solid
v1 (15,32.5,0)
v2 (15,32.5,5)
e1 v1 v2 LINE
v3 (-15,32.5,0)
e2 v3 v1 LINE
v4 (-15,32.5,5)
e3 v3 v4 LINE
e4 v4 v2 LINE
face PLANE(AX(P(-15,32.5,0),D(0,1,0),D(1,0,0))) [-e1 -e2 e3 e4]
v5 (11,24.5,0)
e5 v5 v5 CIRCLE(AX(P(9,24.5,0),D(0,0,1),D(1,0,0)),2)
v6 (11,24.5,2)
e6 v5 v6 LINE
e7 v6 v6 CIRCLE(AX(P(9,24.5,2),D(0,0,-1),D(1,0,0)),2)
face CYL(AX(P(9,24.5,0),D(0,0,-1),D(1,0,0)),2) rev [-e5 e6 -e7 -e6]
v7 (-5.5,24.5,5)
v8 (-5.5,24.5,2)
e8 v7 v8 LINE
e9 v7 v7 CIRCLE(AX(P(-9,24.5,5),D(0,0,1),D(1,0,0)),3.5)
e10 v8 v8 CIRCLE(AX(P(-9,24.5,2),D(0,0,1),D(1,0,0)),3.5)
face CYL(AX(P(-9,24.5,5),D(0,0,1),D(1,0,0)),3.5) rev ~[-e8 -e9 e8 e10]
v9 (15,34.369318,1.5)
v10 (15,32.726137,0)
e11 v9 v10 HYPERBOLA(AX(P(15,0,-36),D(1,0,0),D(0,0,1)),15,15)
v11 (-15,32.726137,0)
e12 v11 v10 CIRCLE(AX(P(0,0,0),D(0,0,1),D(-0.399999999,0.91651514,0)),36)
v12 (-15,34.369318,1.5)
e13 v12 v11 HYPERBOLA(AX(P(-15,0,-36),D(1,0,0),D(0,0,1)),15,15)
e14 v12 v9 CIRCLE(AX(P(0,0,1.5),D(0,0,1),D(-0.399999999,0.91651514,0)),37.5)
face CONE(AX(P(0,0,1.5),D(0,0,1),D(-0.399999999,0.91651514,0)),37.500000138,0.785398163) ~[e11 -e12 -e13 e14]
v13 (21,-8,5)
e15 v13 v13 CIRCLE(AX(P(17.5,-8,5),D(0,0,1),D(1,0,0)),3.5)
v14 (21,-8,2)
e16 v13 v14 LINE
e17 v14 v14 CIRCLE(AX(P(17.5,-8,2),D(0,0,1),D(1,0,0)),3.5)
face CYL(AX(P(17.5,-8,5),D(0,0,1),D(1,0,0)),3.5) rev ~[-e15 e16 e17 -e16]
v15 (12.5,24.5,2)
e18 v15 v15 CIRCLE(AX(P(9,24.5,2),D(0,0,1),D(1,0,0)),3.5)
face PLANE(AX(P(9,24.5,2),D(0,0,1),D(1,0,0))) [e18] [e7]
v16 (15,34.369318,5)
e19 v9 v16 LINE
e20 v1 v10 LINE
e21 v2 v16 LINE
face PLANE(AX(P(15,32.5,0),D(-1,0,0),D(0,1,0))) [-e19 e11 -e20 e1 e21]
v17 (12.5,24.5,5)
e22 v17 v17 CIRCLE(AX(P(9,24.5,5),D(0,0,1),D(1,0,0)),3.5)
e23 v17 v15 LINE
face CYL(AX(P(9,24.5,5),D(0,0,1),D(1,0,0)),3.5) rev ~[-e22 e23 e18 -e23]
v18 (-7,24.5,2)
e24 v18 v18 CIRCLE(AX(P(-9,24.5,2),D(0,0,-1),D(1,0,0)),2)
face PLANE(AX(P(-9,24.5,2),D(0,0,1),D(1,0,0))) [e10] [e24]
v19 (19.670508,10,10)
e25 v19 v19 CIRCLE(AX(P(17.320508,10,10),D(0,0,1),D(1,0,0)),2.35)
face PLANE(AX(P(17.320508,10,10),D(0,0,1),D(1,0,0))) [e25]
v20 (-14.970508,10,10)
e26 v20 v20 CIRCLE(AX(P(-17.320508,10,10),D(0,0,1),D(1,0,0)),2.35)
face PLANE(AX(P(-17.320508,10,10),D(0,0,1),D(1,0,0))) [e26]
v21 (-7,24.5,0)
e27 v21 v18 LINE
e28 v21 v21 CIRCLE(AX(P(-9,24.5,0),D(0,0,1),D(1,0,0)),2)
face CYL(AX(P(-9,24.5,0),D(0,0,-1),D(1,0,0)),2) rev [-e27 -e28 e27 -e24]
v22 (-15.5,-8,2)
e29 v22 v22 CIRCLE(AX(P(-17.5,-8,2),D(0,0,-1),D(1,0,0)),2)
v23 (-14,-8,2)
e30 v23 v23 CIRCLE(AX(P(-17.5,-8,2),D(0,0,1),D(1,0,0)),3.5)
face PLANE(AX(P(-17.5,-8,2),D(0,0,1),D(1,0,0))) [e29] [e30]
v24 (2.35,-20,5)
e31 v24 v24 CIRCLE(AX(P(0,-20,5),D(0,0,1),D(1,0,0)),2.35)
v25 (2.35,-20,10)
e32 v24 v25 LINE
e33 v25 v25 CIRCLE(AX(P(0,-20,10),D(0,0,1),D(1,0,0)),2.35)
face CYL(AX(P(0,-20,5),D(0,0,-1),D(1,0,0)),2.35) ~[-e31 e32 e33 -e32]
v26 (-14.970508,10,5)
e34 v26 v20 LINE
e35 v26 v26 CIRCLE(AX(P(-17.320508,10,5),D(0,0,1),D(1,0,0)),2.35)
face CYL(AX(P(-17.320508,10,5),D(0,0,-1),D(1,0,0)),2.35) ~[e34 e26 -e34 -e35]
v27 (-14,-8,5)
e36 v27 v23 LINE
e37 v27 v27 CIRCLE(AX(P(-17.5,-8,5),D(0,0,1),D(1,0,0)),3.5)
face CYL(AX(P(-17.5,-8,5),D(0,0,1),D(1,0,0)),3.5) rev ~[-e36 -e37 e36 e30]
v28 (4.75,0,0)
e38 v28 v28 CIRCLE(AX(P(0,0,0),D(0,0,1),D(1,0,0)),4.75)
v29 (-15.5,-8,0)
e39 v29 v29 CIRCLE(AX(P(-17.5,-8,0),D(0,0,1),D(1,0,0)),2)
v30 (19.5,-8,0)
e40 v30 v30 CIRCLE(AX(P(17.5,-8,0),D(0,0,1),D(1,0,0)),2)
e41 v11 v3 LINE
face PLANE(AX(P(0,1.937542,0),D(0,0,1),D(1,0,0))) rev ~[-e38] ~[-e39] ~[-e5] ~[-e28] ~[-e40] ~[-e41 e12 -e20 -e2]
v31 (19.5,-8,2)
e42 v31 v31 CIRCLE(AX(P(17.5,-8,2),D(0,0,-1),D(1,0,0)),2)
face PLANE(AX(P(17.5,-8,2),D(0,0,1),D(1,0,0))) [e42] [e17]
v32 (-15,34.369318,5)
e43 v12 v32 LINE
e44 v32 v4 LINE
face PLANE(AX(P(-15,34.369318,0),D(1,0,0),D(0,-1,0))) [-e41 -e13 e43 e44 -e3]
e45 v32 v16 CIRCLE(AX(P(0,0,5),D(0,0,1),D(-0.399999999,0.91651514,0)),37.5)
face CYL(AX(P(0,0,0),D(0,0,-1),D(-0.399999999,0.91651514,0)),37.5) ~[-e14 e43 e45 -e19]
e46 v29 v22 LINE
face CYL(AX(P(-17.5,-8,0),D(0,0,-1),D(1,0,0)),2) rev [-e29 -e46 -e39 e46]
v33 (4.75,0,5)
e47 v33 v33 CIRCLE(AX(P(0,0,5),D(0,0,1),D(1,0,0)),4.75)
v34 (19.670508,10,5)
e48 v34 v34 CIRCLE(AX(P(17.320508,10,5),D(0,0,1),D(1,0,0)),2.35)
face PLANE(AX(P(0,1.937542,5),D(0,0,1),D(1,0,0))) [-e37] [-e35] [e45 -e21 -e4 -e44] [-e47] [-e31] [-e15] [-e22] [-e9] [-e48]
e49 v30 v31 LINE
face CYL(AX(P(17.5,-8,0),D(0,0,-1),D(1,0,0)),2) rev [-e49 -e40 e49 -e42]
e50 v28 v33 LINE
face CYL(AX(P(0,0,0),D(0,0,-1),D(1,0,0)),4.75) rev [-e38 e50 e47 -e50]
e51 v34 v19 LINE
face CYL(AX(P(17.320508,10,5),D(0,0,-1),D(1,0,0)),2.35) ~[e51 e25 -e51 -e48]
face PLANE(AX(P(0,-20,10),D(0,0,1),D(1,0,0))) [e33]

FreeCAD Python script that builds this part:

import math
import FreeCAD as App
import Part
import Sketcher
from FreeCAD import Vector
Q = App.Units.Quantity


def edges_at(feature, points):
    """Names of the edges that pass closest to the given points."""
    edges = feature.Shape.Edges
    near = lambda p: min(range(len(edges)), key=lambda i: edges[i].distToShape(Part.Vertex(*p))[0])
    return sorted({f"Edge{near(p) + 1}" for p in points})

doc = App.newDocument("Part")
body = doc.addObject("PartDesign::Body", "Body")

# Sketch on XY plane
sketch1 = body.newObject("Sketcher::SketchObject", "Sketch")
sketch1.AttachmentSupport = (doc.getObject("XY_Plane"), [""])
sketch1.MapMode = "FlatFace"
sketch1.addGeometry(Part.ArcOfCircle(Part.Circle(Vector(0, 0, 0), Vector(0, 0, 1), 37.5), math.radians(113.578178), math.radians(426.421822)), False)
sketch1.addGeometry(Part.LineSegment(Vector(15, 34.369318, 0), Vector(15, 32.5, 0)), False)
sketch1.addGeometry(Part.LineSegment(Vector(15, 32.5, 0), Vector(-15, 32.5, 0)), False)
sketch1.addGeometry(Part.LineSegment(Vector(-15, 32.5, 0), Vector(-15, 34.369318, 0)), False)
sketch1.addGeometry(Part.Circle(Vector(-17.5, -8, 0), Vector(0, 0, 1), 2), False)
sketch1.addGeometry(Part.Circle(Vector(17.5, -8, 0), Vector(0, 0, 1), 2), False)
sketch1.addGeometry(Part.Circle(Vector(0, 0, 0), Vector(0, 0, 1), 4.75), False)
sketch1.addGeometry(Part.Circle(Vector(-9, 24.5, 0), Vector(0, 0, 1), 2), False)
sketch1.addGeometry(Part.Circle(Vector(9, 24.5, 0), Vector(0, 0, 1), 2), False)
sketch1.addConstraint(Sketcher.Constraint("Coincident", 0, 2, 1, 1))
sketch1.addConstraint(Sketcher.Constraint("Coincident", 1, 2, 2, 1))
sketch1.addConstraint(Sketcher.Constraint("Coincident", 2, 2, 3, 1))
sketch1.addConstraint(Sketcher.Constraint("Coincident", 3, 2, 0, 1))
sketch1.addConstraint(Sketcher.Constraint("Vertical", 1))
sketch1.addConstraint(Sketcher.Constraint("Horizontal", 2))
sketch1.addConstraint(Sketcher.Constraint("Vertical", 3))
sketch1.addConstraint(Sketcher.Constraint("Coincident", 0, 3, -1, 1))
sketch1.addConstraint(Sketcher.Constraint("Coincident", 6, 3, -1, 1))
sketch1.addConstraint(Sketcher.Constraint("Equal", 4, 5))
sketch1.addConstraint(Sketcher.Constraint("Equal", 5, 7))
sketch1.addConstraint(Sketcher.Constraint("Equal", 7, 8))
sketch1.addConstraint(Sketcher.Constraint("Symmetric", 4, 3, 5, 3, -2))
sketch1.addConstraint(Sketcher.Constraint("Symmetric", 7, 3, 8, 3, -2))
sketch1.addConstraint(Sketcher.Constraint("Horizontal", 0, 2, 3, 2))
sketch1.addConstraint(Sketcher.Constraint("Diameter", 4, Q("4 mm")))
sketch1.addConstraint(Sketcher.Constraint("Diameter", 6, Q("9.5 mm")))
sketch1.addConstraint(Sketcher.Constraint("Radius", 0, Q("37.5 mm")))
sketch1.addConstraint(Sketcher.Constraint("DistanceX", 2, 2, 2, 1, Q("30 mm")))
sketch1.addConstraint(Sketcher.Constraint("DistanceY", 4, 3, -1, 1, Q("8 mm")))
sketch1.addConstraint(Sketcher.Constraint("DistanceX", 7, 3, -1, 1, Q("9 mm")))
sketch1.addConstraint(Sketcher.Constraint("DistanceX", 4, 3, 5, 3, Q("35 mm")))
sketch1.addConstraint(Sketcher.Constraint("DistanceY", 8, 3, 1, 2, Q("8 mm")))
sketch1.addConstraint(Sketcher.Constraint("DistanceY", -1, 1, 7, 3, Q("24.5 mm")))
pad1 = body.newObject("PartDesign::Pad", "Pad")
pad1.Profile = sketch1
pad1.Length = 5

# Sketch on XY plane
sketch2 = body.newObject("Sketcher::SketchObject", "Sketch001")
sketch2.AttachmentSupport = (doc.getObject("XY_Plane"), [""])
sketch2.MapMode = "FlatFace"
sketch2.AttachmentOffset = App.Placement(Vector(0, 0, 5), App.Rotation())
sketch2.addGeometry(Part.Circle(Vector(17.320508, 10, 0), Vector(0, 0, 1), 2.35), False)
sketch2.addGeometry(Part.Circle(Vector(-17.320508, 10, 0), Vector(0, 0, 1), 2.35), False)
sketch2.addGeometry(Part.Circle(Vector(0, -20, 0), Vector(0, 0, 1), 2.35), False)
sketch2.addConstraint(Sketcher.Constraint("Equal", 0, 1))
sketch2.addConstraint(Sketcher.Constraint("Equal", 1, 2))
sketch2.addConstraint(Sketcher.Constraint("Symmetric", 0, 3, 1, 3, -2))
sketch2.addConstraint(Sketcher.Constraint("PointOnObject", 2, 3, -2))
sketch2.addConstraint(Sketcher.Constraint("Diameter", 0, Q("4.7 mm")))
sketch2.addConstraint(Sketcher.Constraint("DistanceY", -1, 1, 0, 3, Q("10 mm")))
sketch2.addConstraint(Sketcher.Constraint("DistanceY", 2, 3, -1, 1, Q("20 mm")))
sketch2.addConstraint(Sketcher.Constraint("DistanceX", -1, 1, 0, 3, Q("17.320508 mm")))
pad2 = body.newObject("PartDesign::Pad", "Pad001")
pad2.Profile = sketch2
pad2.Length = 5

# Sketch on XY plane
sketch3 = body.newObject("Sketcher::SketchObject", "Sketch002")
sketch3.AttachmentSupport = (doc.getObject("XY_Plane"), [""])
sketch3.MapMode = "FlatFace"
sketch3.AttachmentOffset = App.Placement(Vector(0, 0, 5), App.Rotation())
sketch3.addGeometry(Part.Circle(Vector(-9, 24.5, 0), Vector(0, 0, 1), 3.5), False)
sketch3.addGeometry(Part.Circle(Vector(9, 24.5, 0), Vector(0, 0, 1), 3.5), False)
sketch3.addGeometry(Part.Circle(Vector(17.5, -8, 0), Vector(0, 0, 1), 3.5), False)
sketch3.addGeometry(Part.Circle(Vector(-17.5, -8, 0), Vector(0, 0, 1), 3.5), False)
sketch3.addConstraint(Sketcher.Constraint("Equal", 0, 1))
sketch3.addConstraint(Sketcher.Constraint("Equal", 1, 2))
sketch3.addConstraint(Sketcher.Constraint("Equal", 2, 3))
sketch3.addConstraint(Sketcher.Constraint("Symmetric", 0, 3, 1, 3, -2))
sketch3.addConstraint(Sketcher.Constraint("Symmetric", 2, 3, 3, 3, -2))
sketch3.addConstraint(Sketcher.Constraint("Diameter", 0, Q("7 mm")))
sketch3.addConstraint(Sketcher.Constraint("DistanceX", 0, 3, -1, 1, Q("9 mm")))
sketch3.addConstraint(Sketcher.Constraint("DistanceY", 2, 3, -1, 1, Q("8 mm")))
sketch3.addConstraint(Sketcher.Constraint("DistanceX", 3, 3, 2, 3, Q("35 mm")))
sketch3.addConstraint(Sketcher.Constraint("DistanceY", -1, 1, 0, 3, Q("24.5 mm")))
pocket1 = body.newObject("PartDesign::Pocket", "Pocket")
pocket1.Profile = sketch3
pocket1.Length = 3
doc.recompute()

chamfer = body.newObject("PartDesign::Chamfer", "Chamfer")
chamfer.Base = (pocket1, edges_at(pocket1, [(0, -37.5, 0)]))
chamfer.Size = 1.5

doc.recompute()
